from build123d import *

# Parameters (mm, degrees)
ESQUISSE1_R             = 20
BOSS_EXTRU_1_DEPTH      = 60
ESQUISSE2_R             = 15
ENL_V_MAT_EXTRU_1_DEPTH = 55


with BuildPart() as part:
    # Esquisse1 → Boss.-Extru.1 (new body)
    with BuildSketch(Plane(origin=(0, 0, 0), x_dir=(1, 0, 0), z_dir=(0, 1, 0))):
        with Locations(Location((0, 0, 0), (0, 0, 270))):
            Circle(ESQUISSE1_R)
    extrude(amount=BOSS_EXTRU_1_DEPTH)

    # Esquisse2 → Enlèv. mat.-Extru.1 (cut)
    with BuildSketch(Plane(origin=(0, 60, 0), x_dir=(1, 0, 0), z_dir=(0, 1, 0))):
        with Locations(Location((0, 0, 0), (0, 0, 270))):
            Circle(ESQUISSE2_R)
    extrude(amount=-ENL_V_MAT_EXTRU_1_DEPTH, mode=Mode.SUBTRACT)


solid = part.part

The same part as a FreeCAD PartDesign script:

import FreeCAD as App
import Part
import Sketcher

V = App.Vector

doc = App.newDocument("Part")
body = doc.addObject("PartDesign::Body", "Body")

sketch1 = body.newObject("Sketcher::SketchObject", "Sketch")
sketch1.AttachmentSupport = (doc.getObject("XZ_Plane"), [""])
sketch1.MapMode = "FlatFace"
sketch1.addGeometry(Part.Circle(V(0, 0, 0), V(0, 0, 1), 20), False)
sketch1.addConstraint([
    Sketcher.Constraint("Coincident", 0, 3, -1, 1),
    Sketcher.Constraint("Diameter", 0, 40.0),
])
pad1 = body.newObject("PartDesign::Pad", "Pad")
pad1.Profile = sketch1
pad1.Length = 60
pad1.Reversed = True

sketch2 = body.newObject("Sketcher::SketchObject", "Sketch001")
sketch2.AttachmentSupport = (doc.getObject("XZ_Plane"), [""])
sketch2.MapMode = "FlatFace"
sketch2.AttachmentOffset = App.Placement(V(0, 0, -60), App.Rotation())
sketch2.addGeometry(Part.Circle(V(0, 0, 0), V(0, 0, 1), 15), False)
sketch2.addConstraint([
    Sketcher.Constraint("Coincident", 0, 3, -1, 1),
    Sketcher.Constraint("Diameter", 0, 30.0),
])
pocket1 = body.newObject("PartDesign::Pocket", "Pocket")
pocket1.Profile = sketch2
pocket1.Length = 55
pocket1.Reversed = True

doc.recompute()
